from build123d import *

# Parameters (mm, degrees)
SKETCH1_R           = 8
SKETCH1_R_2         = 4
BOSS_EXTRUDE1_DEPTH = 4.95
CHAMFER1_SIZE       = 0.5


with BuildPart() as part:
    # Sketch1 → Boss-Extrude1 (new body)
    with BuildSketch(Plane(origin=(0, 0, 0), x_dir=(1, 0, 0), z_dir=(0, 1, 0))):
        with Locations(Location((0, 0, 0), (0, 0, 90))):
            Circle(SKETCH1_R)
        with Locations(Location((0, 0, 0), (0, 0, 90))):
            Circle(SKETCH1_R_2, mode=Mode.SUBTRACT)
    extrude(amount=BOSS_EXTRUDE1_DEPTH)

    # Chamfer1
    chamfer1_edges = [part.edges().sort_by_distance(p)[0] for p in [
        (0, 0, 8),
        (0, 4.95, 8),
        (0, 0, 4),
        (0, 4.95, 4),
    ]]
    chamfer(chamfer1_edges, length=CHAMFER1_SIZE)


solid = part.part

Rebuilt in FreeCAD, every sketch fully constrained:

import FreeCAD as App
import Part
import Sketcher

V = App.Vector
Q = App.Units.Quantity


def edges_at(feature, points):
    """Names of the edges that pass closest to the given points."""
    edges = feature.Shape.Edges
    near = lambda p: min(range(len(edges)), key=lambda i: edges[i].distToShape(Part.Vertex(*p))[0])
    return sorted({f"Edge{near(p) + 1}" for p in points})

doc = App.newDocument("Part")
body = doc.addObject("PartDesign::Body", "Body")

# Sketch on XZ plane
sketch1 = body.newObject("Sketcher::SketchObject", "Sketch")
sketch1.AttachmentSupport = (doc.getObject("XZ_Plane"), [""])
sketch1.MapMode = "FlatFace"
sketch1.addGeometry([
    Part.Circle(V(0, 0, 0), V(0, 0, 1), 8),
    Part.Circle(V(0, 0, 0), V(0, 0, 1), 4),
], False)
sketch1.addConstraint([
    Sketcher.Constraint("Coincident", 0, 3, -1, 1),
    Sketcher.Constraint("Coincident", 1, 3, -1, 1),
    Sketcher.Constraint("Diameter", 0, Q("16 mm")),
    Sketcher.Constraint("Diameter", 1, Q("8 mm")),
])
pad1 = body.newObject("PartDesign::Pad", "Pad")
pad1.Profile = sketch1
pad1.Length = 4.95
pad1.Reversed = True
doc.recompute()

chamfer = body.newObject("PartDesign::Chamfer", "Chamfer")
chamfer.Base = (pad1, edges_at(pad1, [
    (0, 0, 8),
    (0, 4.95, 8),
    (0, 0, 4),
    (0, 4.95, 4),
]))
chamfer.Size = 0.5

doc.recompute()
